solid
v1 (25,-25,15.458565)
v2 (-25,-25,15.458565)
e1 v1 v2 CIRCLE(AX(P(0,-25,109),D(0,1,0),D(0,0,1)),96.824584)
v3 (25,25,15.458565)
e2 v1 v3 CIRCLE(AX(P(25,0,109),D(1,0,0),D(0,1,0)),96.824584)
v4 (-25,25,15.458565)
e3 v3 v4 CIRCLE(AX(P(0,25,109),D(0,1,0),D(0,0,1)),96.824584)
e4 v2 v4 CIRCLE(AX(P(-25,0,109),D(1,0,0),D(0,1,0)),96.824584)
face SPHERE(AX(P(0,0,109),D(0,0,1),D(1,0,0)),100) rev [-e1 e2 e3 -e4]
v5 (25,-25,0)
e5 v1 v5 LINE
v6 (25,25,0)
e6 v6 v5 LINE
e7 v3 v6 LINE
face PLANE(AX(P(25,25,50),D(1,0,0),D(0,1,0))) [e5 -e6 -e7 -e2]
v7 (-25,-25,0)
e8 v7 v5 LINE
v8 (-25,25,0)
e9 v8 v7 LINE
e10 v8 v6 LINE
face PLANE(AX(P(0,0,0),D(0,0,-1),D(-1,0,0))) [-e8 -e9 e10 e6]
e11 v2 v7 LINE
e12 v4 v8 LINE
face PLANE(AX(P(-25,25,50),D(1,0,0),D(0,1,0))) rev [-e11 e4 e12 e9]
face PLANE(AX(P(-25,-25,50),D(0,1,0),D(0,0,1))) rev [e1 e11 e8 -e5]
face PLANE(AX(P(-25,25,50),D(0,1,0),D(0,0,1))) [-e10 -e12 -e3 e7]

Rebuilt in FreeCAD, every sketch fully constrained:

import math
import FreeCAD as App
import Part
import Sketcher

V = App.Vector
Q = App.Units.Quantity

doc = App.newDocument("Part")
params = doc.addObject("Spreadsheet::Sheet", "Params")
for row, (alias, value) in enumerate([
    ("sketch1_width", "50 mm"),
    ("pad1_length", "50 mm"),
    ("sketch2_radius", "100 mm"),
    ("groove_angle", "360 deg"),
], start=1):
    params.set(f"A{row}", alias)
    params.set(f"B{row}", "=" + value)
    params.setAlias(f"B{row}", alias)

body = doc.addObject("PartDesign::Body", "Body")

# Sketch on XY plane
sketch1 = doc.addObject("Sketcher::SketchObject", "Sketch")
body.addObject(sketch1)
sketch1.AttachmentSupport = (doc.XY_Plane, [""])
sketch1.MapMode = "FlatFace"
sketch1.addGeometry([
    Part.LineSegment(V(-25, 25, 0), V(-25, -25, 0)),
    Part.LineSegment(V(-25, -25, 0), V(25, -25, 0)),
    Part.LineSegment(V(25, -25, 0), V(25, 25, 0)),
    Part.LineSegment(V(25, 25, 0), V(-25, 25, 0)),
], False)
sketch1.addConstraint([
    Sketcher.Constraint("Coincident", 0, 2, 1, 1),
    Sketcher.Constraint("Coincident", 1, 2, 2, 1),
    Sketcher.Constraint("Coincident", 2, 2, 3, 1),
    Sketcher.Constraint("Coincident", 3, 2, 0, 1),
    Sketcher.Constraint("Vertical", 0),
    Sketcher.Constraint("Horizontal", 1),
    Sketcher.Constraint("Vertical", 2),
    Sketcher.Constraint("Horizontal", 3),
    Sketcher.Constraint("Symmetric", 0, 2, 2, 2, -1, 1),
    Sketcher.Constraint("Equal", 3, 0),
    Sketcher.Constraint("DistanceX", 1, 1, 1, 2, Q("50 mm")),
])
sketch1.setExpression("Constraints[10]", "Params.sketch1_width")
pad1 = doc.addObject("PartDesign::Pad", "Pad")
body.addObject(pad1)
pad1.Profile = sketch1
pad1.setExpression("Length", "Params.pad1_length")

# Sketch on XZ plane
sketch2 = doc.addObject("Sketcher::SketchObject", "Sketch001")
body.addObject(sketch2)
sketch2.AttachmentSupport = (doc.XZ_Plane, [""])
sketch2.MapMode = "FlatFace"
sketch2.addGeometry([
    Part.LineSegment(V(0, 86.711814, 0), V(97.484546, 86.711814, 0)),
    Part.ArcOfCircle(Part.Circle(V(0, 109, 0), V(0, 0, 1), 100), math.radians(-90), math.radians(-12.878355)),
    Part.LineSegment(V(0, 9, 0), V(0, 86.711814, 0)),
], False)
sketch2.addConstraint([
    Sketcher.Constraint("Coincident", 0, 2, 1, 2),
    Sketcher.Constraint("Coincident", 1, 1, 2, 1),
    Sketcher.Constraint("Coincident", 2, 2, 0, 1),
    Sketcher.Constraint("Horizontal", 0),
    Sketcher.Constraint("Vertical", 2),
    Sketcher.Constraint("PointOnObject", 1, 3, -2),
    Sketcher.Constraint("PointOnObject", 1, 1, -2),
    Sketcher.Constraint("Radius", 1, Q("100 mm")),
    Sketcher.Constraint("DistanceY", -1, 1, 1, 3, Q("109 mm")),
    Sketcher.Constraint("DistanceX", 0, 1, 0, 2, Q("97.484546 mm")),
])
sketch2.setExpression("Constraints[7]", "Params.sketch2_radius")
groove = doc.addObject("PartDesign::Groove", "Groove")
body.addObject(groove)
groove.Profile = sketch2
groove.ReferenceAxis = (sketch2, ["V_Axis"])
groove.setExpression("Angle", "Params.groove_angle")

doc.recompute()
